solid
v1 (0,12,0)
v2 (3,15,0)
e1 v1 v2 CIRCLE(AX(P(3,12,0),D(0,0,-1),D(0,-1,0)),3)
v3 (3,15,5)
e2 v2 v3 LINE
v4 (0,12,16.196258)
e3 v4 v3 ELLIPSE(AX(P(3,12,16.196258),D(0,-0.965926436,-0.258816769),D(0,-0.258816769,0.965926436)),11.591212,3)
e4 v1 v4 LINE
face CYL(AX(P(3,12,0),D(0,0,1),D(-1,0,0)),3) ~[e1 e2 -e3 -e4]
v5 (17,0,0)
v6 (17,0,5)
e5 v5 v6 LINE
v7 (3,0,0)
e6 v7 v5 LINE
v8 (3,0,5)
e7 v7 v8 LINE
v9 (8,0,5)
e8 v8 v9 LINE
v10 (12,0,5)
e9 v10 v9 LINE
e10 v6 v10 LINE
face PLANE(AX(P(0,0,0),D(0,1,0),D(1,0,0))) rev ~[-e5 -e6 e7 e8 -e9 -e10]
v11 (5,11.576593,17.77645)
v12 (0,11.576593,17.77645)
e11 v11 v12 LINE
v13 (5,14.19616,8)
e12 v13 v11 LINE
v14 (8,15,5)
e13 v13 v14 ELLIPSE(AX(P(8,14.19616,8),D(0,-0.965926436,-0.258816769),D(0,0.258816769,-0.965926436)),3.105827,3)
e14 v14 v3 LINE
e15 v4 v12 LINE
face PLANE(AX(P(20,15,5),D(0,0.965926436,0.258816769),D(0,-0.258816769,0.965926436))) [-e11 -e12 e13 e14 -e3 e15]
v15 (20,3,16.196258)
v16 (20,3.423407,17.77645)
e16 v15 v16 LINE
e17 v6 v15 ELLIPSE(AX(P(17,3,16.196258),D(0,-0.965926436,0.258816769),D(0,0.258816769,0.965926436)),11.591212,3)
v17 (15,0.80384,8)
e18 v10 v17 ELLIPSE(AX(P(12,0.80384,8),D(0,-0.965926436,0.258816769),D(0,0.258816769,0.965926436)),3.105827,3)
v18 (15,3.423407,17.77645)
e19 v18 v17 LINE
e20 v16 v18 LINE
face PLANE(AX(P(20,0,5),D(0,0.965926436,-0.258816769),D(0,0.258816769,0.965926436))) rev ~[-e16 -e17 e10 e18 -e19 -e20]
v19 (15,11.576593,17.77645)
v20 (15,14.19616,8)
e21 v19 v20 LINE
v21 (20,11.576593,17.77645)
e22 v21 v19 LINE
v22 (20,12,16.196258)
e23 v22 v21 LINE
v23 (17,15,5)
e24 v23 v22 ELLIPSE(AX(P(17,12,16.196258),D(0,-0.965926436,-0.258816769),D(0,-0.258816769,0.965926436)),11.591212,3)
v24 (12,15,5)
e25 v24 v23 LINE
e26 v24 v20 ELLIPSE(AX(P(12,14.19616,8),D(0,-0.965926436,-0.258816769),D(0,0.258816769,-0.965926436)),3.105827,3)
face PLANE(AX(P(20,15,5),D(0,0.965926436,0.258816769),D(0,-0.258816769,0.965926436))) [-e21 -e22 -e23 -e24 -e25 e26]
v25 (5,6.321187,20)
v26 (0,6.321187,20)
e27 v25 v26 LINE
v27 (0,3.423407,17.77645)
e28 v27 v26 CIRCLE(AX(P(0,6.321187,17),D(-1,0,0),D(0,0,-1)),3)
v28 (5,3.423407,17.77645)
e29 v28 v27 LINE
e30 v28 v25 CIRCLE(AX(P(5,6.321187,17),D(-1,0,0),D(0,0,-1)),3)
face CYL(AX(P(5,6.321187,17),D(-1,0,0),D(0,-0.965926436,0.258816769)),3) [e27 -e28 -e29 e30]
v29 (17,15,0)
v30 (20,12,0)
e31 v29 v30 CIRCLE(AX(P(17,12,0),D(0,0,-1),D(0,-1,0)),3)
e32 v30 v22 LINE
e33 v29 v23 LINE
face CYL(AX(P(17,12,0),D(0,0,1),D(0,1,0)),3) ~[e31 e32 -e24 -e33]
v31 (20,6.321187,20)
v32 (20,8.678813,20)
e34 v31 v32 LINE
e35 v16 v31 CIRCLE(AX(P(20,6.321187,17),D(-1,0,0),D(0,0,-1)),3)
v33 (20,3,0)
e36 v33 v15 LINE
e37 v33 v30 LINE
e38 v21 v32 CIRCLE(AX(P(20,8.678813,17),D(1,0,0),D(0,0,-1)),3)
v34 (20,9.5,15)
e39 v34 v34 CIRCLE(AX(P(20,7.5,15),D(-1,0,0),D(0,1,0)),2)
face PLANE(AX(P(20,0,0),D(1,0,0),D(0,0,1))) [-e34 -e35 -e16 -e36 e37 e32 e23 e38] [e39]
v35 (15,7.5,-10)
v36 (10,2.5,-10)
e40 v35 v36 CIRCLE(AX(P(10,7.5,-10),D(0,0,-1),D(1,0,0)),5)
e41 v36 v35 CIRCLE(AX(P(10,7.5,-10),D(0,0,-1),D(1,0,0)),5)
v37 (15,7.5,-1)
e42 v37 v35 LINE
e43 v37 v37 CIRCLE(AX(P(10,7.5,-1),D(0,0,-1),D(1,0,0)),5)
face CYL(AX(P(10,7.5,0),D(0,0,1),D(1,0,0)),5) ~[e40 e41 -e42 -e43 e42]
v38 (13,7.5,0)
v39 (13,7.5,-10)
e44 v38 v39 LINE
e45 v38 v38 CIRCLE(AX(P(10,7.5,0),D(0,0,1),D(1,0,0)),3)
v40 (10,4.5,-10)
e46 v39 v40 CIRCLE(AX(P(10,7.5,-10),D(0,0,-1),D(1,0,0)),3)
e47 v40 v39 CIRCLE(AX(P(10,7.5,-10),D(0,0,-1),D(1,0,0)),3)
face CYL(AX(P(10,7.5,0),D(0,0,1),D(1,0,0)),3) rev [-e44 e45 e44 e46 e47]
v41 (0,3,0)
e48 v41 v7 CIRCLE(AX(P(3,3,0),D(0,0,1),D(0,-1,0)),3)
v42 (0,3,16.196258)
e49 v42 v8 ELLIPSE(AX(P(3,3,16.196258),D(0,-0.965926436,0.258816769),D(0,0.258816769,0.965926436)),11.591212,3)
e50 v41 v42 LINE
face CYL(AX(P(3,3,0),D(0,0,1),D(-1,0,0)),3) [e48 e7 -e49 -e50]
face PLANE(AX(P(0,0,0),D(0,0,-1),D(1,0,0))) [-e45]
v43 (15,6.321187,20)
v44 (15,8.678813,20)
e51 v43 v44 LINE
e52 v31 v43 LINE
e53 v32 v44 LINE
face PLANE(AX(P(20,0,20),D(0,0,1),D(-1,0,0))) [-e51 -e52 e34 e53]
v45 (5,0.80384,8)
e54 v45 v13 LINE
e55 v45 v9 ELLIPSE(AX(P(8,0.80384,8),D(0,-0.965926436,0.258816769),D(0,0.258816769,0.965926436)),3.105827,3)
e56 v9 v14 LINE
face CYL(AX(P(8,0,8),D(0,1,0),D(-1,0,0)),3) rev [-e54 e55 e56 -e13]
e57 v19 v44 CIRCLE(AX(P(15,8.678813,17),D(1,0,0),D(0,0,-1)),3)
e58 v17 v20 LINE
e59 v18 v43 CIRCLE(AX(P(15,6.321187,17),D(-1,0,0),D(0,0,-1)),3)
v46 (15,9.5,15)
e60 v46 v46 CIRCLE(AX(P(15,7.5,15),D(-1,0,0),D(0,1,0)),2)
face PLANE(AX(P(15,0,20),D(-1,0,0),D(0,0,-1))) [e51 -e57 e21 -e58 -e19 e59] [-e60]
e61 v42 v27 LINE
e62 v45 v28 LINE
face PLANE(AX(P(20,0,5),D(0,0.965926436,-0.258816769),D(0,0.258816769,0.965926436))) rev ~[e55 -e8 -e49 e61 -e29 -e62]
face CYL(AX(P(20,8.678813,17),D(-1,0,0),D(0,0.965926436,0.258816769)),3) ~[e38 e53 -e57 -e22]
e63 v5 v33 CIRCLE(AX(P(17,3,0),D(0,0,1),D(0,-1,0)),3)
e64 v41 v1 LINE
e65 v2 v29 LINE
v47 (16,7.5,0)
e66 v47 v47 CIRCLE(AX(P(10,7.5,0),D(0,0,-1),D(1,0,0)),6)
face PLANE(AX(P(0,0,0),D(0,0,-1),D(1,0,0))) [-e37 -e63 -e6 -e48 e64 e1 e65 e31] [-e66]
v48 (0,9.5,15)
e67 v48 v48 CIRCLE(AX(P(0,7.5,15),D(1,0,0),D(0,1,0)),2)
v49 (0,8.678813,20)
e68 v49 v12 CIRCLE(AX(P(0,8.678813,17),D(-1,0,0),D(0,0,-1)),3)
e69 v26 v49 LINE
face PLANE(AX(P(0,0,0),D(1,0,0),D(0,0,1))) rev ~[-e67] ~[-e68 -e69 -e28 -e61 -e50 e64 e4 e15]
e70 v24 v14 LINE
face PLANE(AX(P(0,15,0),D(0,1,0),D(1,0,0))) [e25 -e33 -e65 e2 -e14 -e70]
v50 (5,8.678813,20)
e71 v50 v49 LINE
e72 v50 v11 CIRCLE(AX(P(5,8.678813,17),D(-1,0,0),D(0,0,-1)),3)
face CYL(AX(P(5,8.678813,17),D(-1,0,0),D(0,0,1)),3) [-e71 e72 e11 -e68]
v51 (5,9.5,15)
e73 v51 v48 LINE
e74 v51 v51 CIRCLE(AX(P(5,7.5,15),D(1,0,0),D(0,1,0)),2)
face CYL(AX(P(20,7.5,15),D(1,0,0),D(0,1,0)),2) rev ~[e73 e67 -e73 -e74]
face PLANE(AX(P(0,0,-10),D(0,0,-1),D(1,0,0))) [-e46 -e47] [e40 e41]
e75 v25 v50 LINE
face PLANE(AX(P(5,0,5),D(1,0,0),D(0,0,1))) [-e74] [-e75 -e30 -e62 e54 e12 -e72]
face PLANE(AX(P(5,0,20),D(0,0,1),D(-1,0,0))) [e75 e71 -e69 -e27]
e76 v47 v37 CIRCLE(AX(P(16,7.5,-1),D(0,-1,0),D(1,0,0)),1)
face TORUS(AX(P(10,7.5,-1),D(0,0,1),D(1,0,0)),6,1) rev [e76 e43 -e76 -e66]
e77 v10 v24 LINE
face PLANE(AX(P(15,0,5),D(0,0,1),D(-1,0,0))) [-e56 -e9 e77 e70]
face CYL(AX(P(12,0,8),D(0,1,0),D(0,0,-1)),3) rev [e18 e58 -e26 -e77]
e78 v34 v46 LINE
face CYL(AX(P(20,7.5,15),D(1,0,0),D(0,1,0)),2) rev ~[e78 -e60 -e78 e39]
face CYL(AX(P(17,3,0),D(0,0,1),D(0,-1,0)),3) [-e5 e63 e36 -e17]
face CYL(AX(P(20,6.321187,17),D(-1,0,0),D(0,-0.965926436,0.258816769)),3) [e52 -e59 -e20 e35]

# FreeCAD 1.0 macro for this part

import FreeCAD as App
import Part
import Sketcher

V = App.Vector
Q = App.Units.Quantity


def edges_at(feature, points):
    """Names of the edges that pass closest to the given points."""
    edges = feature.Shape.Edges
    near = lambda p: min(range(len(edges)), key=lambda i: edges[i].distToShape(Part.Vertex(*p))[0])
    return sorted({f"Edge{near(p) + 1}" for p in points})


def add_polygon(sketch, points):
    """Adds a closed chain of lines whose ends are joined by coincident constraints."""
    first, n = sketch.GeometryCount, len(points)
    for a, b in zip(points, points[1:] + points[:1]):
        sketch.addGeometry(Part.LineSegment(App.Vector(*a, 0), App.Vector(*b, 0)), False)
    for i in range(n):
        sketch.addConstraint(Sketcher.Constraint("Coincident", first + i, 2, first + (i + 1) % n, 1))

doc = App.newDocument("Part")
body = doc.addObject("PartDesign::Body", "Body")

# Sketch on XZ plane
sketch1 = body.newObject("Sketcher::SketchObject", "Sketch")
sketch1.AttachmentSupport = (doc.getObject("XZ_Plane"), [""])
sketch1.MapMode = "FlatFace"
add_polygon(sketch1, [(20, 0), (0, 0), (0, 20), (5, 20), (5, 5), (15, 5), (15, 20), (20, 20)])  # lines 0-7
sketch1.addConstraint(Sketcher.Constraint("Horizontal", 0))
sketch1.addConstraint(Sketcher.Constraint("Vertical", 1))
sketch1.addConstraint(Sketcher.Constraint("Horizontal", 2))
sketch1.addConstraint(Sketcher.Constraint("Vertical", 3))
sketch1.addConstraint(Sketcher.Constraint("Horizontal", 4))
sketch1.addConstraint(Sketcher.Constraint("Vertical", 5))
sketch1.addConstraint(Sketcher.Constraint("Horizontal", 6))
sketch1.addConstraint(Sketcher.Constraint("Vertical", 7))
sketch1.addConstraint(Sketcher.Constraint("Coincident", 0, 2, -1, 1))
sketch1.addConstraint(Sketcher.Constraint("Horizontal", 2, 2, 5, 2))
sketch1.addConstraint(Sketcher.Constraint("Equal", 2, 6))
sketch1.addConstraint(Sketcher.Constraint("Equal", 0, 1))
sketch1.addConstraint(Sketcher.Constraint("DistanceX", 2, 1, 2, 2, Q("5 mm")))
sketch1.addConstraint(Sketcher.Constraint("DistanceX", 4, 1, 4, 2, Q("10 mm")))
sketch1.addConstraint(Sketcher.Constraint("DistanceY", 3, 2, 3, 1, Q("15 mm")))
pad1 = body.newObject("PartDesign::Pad", "Pad")
pad1.Profile = sketch1
pad1.Length = 15
pad1.Reversed = True

# Sketch on YZ plane
sketch2 = body.newObject("Sketcher::SketchObject", "Sketch001")
sketch2.AttachmentSupport = (doc.getObject("YZ_Plane"), [""])
sketch2.MapMode = "FlatFace"
sketch2.AttachmentOffset = App.Placement(V(0, 0, 20), App.Rotation())
sketch2.addGeometry(Part.Circle(V(7.5, 15, 0), V(0, 0, 1), 2), False)
sketch2.addConstraint(Sketcher.Constraint("Diameter", 0, Q("4 mm")))
sketch2.addConstraint(Sketcher.Constraint("DistanceY", -1, 1, 0, 3, Q("15 mm")))
sketch2.addConstraint(Sketcher.Constraint("DistanceX", -1, 1, 0, 3, Q("7.5 mm")))
pocket1 = body.newObject("PartDesign::Pocket", "Pocket")
pocket1.Profile = sketch2
pocket1.Type = "ThroughAll"

# Sketch on XY plane
sketch3 = body.newObject("Sketcher::SketchObject", "Sketch002")
sketch3.AttachmentSupport = (doc.getObject("XY_Plane"), [""])
sketch3.MapMode = "FlatFace"
sketch3.addGeometry(Part.Circle(V(10, 7.5, 0), V(0, 0, 1), 5), False)
sketch3.addGeometry(Part.Circle(V(10, 7.5, 0), V(0, 0, 1), 3), False)
sketch3.addConstraint(Sketcher.Constraint("Coincident", 1, 3, 0, 3))
sketch3.addConstraint(Sketcher.Constraint("Diameter", 0, Q("10 mm")))
sketch3.addConstraint(Sketcher.Constraint("Diameter", 1, Q("6 mm")))
sketch3.addConstraint(Sketcher.Constraint("DistanceX", -1, 1, 0, 3, Q("10 mm")))
sketch3.addConstraint(Sketcher.Constraint("DistanceY", -1, 1, 0, 3, Q("7.5 mm")))
pad2 = body.newObject("PartDesign::Pad", "Pad001")
pad2.Profile = sketch3
pad2.Length = 10
pad2.Reversed = True

# Sketch on YZ plane
sketch4 = body.newObject("Sketcher::SketchObject", "Sketch003")
sketch4.AttachmentSupport = (doc.getObject("YZ_Plane"), [""])
sketch4.MapMode = "FlatFace"
sketch4.AttachmentOffset = App.Placement(V(0, 0, 20), App.Rotation())
add_polygon(sketch4, [(4, 20), (0, 20), (0, 5)])  # lines 0-2
add_polygon(sketch4, [(11, 20), (15, 5), (15, 20)])  # lines 3-5
sketch4.addConstraint(Sketcher.Constraint("Horizontal", 0))
sketch4.addConstraint(Sketcher.Constraint("Vertical", 1))
sketch4.addConstraint(Sketcher.Constraint("Vertical", 4))
sketch4.addConstraint(Sketcher.Constraint("Horizontal", 5))
sketch4.addConstraint(Sketcher.Constraint("PointOnObject", 0, 2, -2))
sketch4.addConstraint(Sketcher.Constraint("Horizontal", 1, 2, 3, 2))
sketch4.addConstraint(Sketcher.Constraint("Horizontal", 2, 2, 4, 2))
sketch4.addConstraint(Sketcher.Constraint("Equal", 0, 5))
sketch4.addConstraint(Sketcher.Constraint("Angle", 2, Q("75.0001 deg")))
sketch4.addConstraint(Sketcher.Constraint("DistanceY", 1, 2, 1, 1, Q("15 mm")))
sketch4.addConstraint(Sketcher.Constraint("DistanceY", -1, 1, 0, 2, Q("20 mm")))
sketch4.addConstraint(Sketcher.Constraint("DistanceX", -1, 1, 3, 2, Q("15 mm")))
pocket2 = body.newObject("PartDesign::Pocket", "Pocket001")
pocket2.Profile = sketch4
pocket2.Type = "ThroughAll"
doc.recompute()

fillet = body.newObject("PartDesign::Fillet", "Fillet")
fillet.Base = (pocket2, edges_at(pocket2, [
    (2.5, 4.019, 20),
    (2.5, 10.981, 20),
    (17.5, 4.019, 20),
    (17.5, 10.981, 20),
]))
fillet.Radius = 3
doc.recompute()

fillet2 = body.newObject("PartDesign::Fillet", "Fillet001")
fillet2.Base = (fillet, edges_at(fillet, [
    (0, 0, 2.5),
    (20, 0, 2.5),
    (20, 15, 2.5),
    (5, 7.5, 5),
    (15, 7.5, 5),
    (0, 15, 2.5),
]))
fillet2.Radius = 3
doc.recompute()

fillet3 = body.newObject("PartDesign::Fillet", "Fillet002")
fillet3.Base = (fillet2, edges_at(fillet2, [(5.338, 5.692, 0)]))
fillet3.Radius = 1

doc.recompute()
